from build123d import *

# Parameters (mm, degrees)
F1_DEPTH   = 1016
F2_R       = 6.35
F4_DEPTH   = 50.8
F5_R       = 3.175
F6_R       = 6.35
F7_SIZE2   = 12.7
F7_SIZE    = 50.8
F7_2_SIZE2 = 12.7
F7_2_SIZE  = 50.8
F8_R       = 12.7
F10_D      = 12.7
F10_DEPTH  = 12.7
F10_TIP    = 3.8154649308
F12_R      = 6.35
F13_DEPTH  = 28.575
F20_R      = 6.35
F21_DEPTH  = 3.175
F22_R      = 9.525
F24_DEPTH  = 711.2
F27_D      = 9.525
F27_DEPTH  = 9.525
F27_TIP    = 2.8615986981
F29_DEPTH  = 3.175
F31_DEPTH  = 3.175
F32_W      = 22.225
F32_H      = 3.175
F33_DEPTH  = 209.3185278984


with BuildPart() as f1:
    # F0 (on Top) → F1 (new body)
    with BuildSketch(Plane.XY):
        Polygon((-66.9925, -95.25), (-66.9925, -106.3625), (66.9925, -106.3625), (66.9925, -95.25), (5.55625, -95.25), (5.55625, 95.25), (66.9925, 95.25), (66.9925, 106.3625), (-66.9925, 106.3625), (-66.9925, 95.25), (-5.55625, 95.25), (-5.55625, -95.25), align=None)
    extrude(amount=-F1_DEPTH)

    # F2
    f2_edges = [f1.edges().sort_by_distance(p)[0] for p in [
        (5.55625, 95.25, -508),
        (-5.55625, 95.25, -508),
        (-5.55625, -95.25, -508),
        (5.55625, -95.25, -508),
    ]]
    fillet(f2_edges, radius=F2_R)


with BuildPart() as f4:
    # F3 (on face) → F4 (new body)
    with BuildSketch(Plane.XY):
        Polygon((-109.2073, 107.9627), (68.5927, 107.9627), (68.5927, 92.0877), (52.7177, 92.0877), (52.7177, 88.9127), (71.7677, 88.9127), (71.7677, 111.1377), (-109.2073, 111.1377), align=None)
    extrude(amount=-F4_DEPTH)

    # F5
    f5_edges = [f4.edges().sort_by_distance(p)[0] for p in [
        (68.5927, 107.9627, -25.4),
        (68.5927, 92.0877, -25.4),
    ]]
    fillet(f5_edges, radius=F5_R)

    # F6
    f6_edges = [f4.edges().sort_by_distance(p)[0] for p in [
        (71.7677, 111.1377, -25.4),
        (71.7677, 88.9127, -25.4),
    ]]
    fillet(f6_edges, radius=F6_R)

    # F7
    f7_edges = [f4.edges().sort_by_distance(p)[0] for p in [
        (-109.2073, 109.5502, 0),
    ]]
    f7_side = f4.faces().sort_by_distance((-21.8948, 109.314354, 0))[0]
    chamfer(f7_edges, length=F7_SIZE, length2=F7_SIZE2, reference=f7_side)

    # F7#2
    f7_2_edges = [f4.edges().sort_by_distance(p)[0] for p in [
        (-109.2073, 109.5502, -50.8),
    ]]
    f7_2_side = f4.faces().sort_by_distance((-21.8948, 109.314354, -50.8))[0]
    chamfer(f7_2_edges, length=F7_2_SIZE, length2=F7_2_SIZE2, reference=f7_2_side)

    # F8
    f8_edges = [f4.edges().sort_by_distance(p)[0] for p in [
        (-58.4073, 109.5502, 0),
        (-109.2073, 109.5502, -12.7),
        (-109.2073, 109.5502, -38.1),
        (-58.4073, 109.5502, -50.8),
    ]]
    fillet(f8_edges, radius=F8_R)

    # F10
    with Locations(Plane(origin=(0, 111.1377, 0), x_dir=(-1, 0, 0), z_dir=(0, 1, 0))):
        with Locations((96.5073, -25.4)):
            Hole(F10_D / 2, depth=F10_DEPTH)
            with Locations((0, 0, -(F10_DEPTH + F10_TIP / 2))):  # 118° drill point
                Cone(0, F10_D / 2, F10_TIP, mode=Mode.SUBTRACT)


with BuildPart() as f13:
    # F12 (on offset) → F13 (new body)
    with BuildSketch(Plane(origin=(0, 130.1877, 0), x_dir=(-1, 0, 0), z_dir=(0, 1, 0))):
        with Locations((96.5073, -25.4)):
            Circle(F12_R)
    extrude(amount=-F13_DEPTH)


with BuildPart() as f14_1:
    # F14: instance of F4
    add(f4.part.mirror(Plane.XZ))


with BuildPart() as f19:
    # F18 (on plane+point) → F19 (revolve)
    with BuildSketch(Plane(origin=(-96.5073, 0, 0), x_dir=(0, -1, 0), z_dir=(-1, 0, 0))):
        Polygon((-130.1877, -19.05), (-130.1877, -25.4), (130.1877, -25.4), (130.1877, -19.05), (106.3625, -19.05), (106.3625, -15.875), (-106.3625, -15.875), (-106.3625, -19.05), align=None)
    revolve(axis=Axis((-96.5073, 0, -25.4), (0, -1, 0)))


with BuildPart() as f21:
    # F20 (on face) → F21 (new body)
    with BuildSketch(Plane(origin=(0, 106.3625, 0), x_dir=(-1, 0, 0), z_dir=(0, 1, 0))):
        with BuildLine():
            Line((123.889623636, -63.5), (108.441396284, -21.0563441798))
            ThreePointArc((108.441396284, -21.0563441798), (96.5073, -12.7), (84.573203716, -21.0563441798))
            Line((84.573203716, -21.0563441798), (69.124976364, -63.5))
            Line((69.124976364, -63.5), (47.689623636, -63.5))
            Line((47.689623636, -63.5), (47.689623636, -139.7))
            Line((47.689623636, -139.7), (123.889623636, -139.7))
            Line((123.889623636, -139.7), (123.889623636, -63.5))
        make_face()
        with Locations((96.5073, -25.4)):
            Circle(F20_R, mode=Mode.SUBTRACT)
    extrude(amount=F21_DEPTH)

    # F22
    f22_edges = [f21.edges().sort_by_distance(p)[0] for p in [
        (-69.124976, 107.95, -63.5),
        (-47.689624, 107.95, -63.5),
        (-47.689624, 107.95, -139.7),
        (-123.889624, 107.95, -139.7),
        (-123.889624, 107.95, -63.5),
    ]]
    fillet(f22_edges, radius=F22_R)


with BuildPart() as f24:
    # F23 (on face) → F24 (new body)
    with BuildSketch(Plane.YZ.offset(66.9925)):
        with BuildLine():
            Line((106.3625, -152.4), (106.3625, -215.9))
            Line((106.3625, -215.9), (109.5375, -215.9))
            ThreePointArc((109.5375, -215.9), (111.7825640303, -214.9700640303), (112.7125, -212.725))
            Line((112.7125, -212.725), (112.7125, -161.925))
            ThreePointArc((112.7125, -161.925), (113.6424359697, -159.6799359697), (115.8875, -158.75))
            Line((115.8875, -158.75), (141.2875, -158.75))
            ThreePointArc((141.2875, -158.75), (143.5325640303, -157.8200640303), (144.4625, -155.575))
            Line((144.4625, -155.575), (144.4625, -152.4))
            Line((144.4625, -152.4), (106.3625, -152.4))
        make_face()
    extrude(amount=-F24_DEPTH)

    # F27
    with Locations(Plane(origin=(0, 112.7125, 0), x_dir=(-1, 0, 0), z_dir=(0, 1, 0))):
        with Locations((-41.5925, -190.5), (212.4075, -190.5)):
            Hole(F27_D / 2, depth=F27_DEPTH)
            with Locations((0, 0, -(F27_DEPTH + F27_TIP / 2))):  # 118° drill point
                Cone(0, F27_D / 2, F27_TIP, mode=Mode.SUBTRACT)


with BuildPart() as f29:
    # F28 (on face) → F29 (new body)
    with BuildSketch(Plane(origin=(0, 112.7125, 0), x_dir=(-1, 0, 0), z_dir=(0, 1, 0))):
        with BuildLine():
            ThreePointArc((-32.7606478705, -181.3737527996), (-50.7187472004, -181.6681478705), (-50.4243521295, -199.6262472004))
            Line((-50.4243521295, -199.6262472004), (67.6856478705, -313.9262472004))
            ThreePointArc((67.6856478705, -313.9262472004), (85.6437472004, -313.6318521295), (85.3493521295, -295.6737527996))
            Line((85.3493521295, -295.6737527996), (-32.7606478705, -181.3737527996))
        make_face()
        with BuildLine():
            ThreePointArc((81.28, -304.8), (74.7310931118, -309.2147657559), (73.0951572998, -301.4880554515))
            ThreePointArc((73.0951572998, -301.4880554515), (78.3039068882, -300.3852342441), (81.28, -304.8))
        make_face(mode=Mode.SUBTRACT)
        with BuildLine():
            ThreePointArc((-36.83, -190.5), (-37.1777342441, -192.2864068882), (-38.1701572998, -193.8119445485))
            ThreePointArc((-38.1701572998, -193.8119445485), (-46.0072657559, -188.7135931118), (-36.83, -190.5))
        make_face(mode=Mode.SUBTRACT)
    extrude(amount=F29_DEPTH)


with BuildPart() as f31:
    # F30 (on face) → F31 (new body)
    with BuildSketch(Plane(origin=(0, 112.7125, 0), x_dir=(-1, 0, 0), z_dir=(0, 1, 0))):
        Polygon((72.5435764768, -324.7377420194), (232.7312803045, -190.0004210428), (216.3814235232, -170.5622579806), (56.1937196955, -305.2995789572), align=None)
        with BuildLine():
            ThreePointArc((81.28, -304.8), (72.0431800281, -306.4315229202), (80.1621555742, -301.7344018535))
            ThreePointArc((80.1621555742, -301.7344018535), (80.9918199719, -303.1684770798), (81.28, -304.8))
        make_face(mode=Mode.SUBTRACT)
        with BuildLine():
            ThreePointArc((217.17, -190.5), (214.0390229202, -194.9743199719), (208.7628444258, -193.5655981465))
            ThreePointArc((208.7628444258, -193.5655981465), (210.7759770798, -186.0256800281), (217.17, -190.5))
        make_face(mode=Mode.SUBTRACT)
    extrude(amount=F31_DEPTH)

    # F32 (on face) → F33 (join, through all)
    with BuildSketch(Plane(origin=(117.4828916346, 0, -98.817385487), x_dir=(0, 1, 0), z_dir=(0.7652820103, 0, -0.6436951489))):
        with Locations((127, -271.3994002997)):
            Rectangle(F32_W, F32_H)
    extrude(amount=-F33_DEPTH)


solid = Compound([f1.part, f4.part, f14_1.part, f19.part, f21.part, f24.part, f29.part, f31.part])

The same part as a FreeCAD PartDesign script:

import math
import FreeCAD as App
import Part
import Sketcher
from FreeCAD import Vector
Q = App.Units.Quantity


def edges_at(feature, points):
    """Names of the edges that pass closest to the given points."""
    edges = feature.Shape.Edges
    near = lambda p: min(range(len(edges)), key=lambda i: edges[i].distToShape(Part.Vertex(*p))[0])
    return sorted({f"Edge{near(p) + 1}" for p in points})

doc = App.newDocument("Part")
body = doc.addObject("PartDesign::Body", "Body")

sketch1 = body.newObject("Sketcher::SketchObject", "Sketch")
sketch1.AttachmentSupport = (doc.getObject("XY_Plane"), [""])
sketch1.MapMode = "FlatFace"
sketch1.addGeometry(Part.LineSegment(Vector(-67, -95, 0), Vector(-67, -106, 0)), False)
sketch1.addGeometry(Part.LineSegment(Vector(-67, -106, 0), Vector(67, -106, 0)), False)
sketch1.addGeometry(Part.LineSegment(Vector(67, -106, 0), Vector(67, -95, 0)), False)
sketch1.addGeometry(Part.LineSegment(Vector(67, -95, 0), Vector(6, -95, 0)), False)
sketch1.addGeometry(Part.LineSegment(Vector(6, -95, 0), Vector(6, 95, 0)), False)
sketch1.addGeometry(Part.LineSegment(Vector(6, 95, 0), Vector(67, 95, 0)), False)
sketch1.addGeometry(Part.LineSegment(Vector(67, 95, 0), Vector(67, 106, 0)), False)
sketch1.addGeometry(Part.LineSegment(Vector(67, 106, 0), Vector(-67, 106, 0)), False)
sketch1.addGeometry(Part.LineSegment(Vector(-67, 106, 0), Vector(-67, 95, 0)), False)
sketch1.addGeometry(Part.LineSegment(Vector(-67, 95, 0), Vector(-6, 95, 0)), False)
sketch1.addGeometry(Part.LineSegment(Vector(-6, 95, 0), Vector(-6, -95, 0)), False)
sketch1.addGeometry(Part.LineSegment(Vector(-6, -95, 0), Vector(-67, -95, 0)), False)
sketch1.addConstraint(Sketcher.Constraint("Coincident", 0, 2, 1, 1))
sketch1.addConstraint(Sketcher.Constraint("Coincident", 1, 2, 2, 1))
sketch1.addConstraint(Sketcher.Constraint("Coincident", 2, 2, 3, 1))
sketch1.addConstraint(Sketcher.Constraint("Coincident", 3, 2, 4, 1))
sketch1.addConstraint(Sketcher.Constraint("Coincident", 4, 2, 5, 1))
sketch1.addConstraint(Sketcher.Constraint("Coincident", 5, 2, 6, 1))
sketch1.addConstraint(Sketcher.Constraint("Coincident", 6, 2, 7, 1))
sketch1.addConstraint(Sketcher.Constraint("Coincident", 7, 2, 8, 1))
sketch1.addConstraint(Sketcher.Constraint("Coincident", 8, 2, 9, 1))
sketch1.addConstraint(Sketcher.Constraint("Coincident", 9, 2, 10, 1))
sketch1.addConstraint(Sketcher.Constraint("Coincident", 10, 2, 11, 1))
sketch1.addConstraint(Sketcher.Constraint("Coincident", 11, 2, 0, 1))
sketch1.addConstraint(Sketcher.Constraint("Vertical", 0))
sketch1.addConstraint(Sketcher.Constraint("Horizontal", 1))
sketch1.addConstraint(Sketcher.Constraint("Vertical", 2))
sketch1.addConstraint(Sketcher.Constraint("Horizontal", 3))
sketch1.addConstraint(Sketcher.Constraint("Vertical", 4))
sketch1.addConstraint(Sketcher.Constraint("Horizontal", 5))
sketch1.addConstraint(Sketcher.Constraint("Vertical", 6))
sketch1.addConstraint(Sketcher.Constraint("Horizontal", 7))
sketch1.addConstraint(Sketcher.Constraint("Vertical", 8))
sketch1.addConstraint(Sketcher.Constraint("Horizontal", 9))
sketch1.addConstraint(Sketcher.Constraint("Vertical", 10))
sketch1.addConstraint(Sketcher.Constraint("Horizontal", 11))
sketch1.addConstraint(Sketcher.Constraint("Symmetric", 0, 2, 6, 2, -1, 1))
sketch1.addConstraint(Sketcher.Constraint("Symmetric", 2, 2, 8, 2, -1, 1))
sketch1.addConstraint(Sketcher.Constraint("Symmetric", 4, 2, 10, 2, -1, 1))
sketch1.addConstraint(Sketcher.Constraint("Symmetric", 5, 2, 8, 2, -2))
sketch1.addConstraint(Sketcher.Constraint("DistanceY", 4, 1, 4, 2, Q("7.5 in")))
sketch1.addConstraint(Sketcher.Constraint("DistanceX", 1, 1, 1, 2, Q("5.275 in")))
sketch1.addConstraint(Sketcher.Constraint("DistanceY", 0, 2, 0, 1, Q("0.4375 in")))
sketch1.addConstraint(Sketcher.Constraint("DistanceX", -1, 1, 3, 2, Q("0.21875 in")))
pad1 = body.newObject("PartDesign::Pad", "Pad")
pad1.Profile = sketch1
pad1.Length = Q("40 in")
pad1.Reversed = True
doc.recompute()

fillet = body.newObject("PartDesign::Fillet", "Fillet")
fillet.Base = (pad1, edges_at(pad1, [
    (5.556, 95.25, -508),
    (-5.556, 95.25, -508),
    (-5.556, -95.25, -508),
    (5.556, -95.25, -508),
]))
fillet.Radius = Q("0.25 in")
body2 = doc.addObject("PartDesign::Body", "Body001")

sketch2 = body2.newObject("Sketcher::SketchObject", "Sketch001")
sketch2.AttachmentSupport = (doc.getObject("XY_Plane001"), [""])
sketch2.MapMode = "FlatFace"
sketch2.addGeometry(Part.LineSegment(Vector(-109.2, 108, 0), Vector(68.6, 108, 0)), False)
sketch2.addGeometry(Part.LineSegment(Vector(68.6, 108, 0), Vector(68.6, 92.1, 0)), False)
sketch2.addGeometry(Part.LineSegment(Vector(68.6, 92.1, 0), Vector(52.7, 92.1, 0)), False)
sketch2.addGeometry(Part.LineSegment(Vector(52.7, 92.1, 0), Vector(52.7, 88.9, 0)), False)
sketch2.addGeometry(Part.LineSegment(Vector(52.7, 88.9, 0), Vector(71.8, 88.9, 0)), False)
sketch2.addGeometry(Part.LineSegment(Vector(71.8, 88.9, 0), Vector(71.8, 111.1, 0)), False)
sketch2.addGeometry(Part.LineSegment(Vector(71.8, 111.1, 0), Vector(-109.2, 111.1, 0)), False)
sketch2.addGeometry(Part.LineSegment(Vector(-109.2, 111.1, 0), Vector(-109.2, 108, 0)), False)
sketch2.addConstraint(Sketcher.Constraint("Coincident", 0, 2, 1, 1))
sketch2.addConstraint(Sketcher.Constraint("Coincident", 1, 2, 2, 1))
sketch2.addConstraint(Sketcher.Constraint("Coincident", 2, 2, 3, 1))
sketch2.addConstraint(Sketcher.Constraint("Coincident", 3, 2, 4, 1))
sketch2.addConstraint(Sketcher.Constraint("Coincident", 4, 2, 5, 1))
sketch2.addConstraint(Sketcher.Constraint("Coincident", 5, 2, 6, 1))
sketch2.addConstraint(Sketcher.Constraint("Coincident", 6, 2, 7, 1))
sketch2.addConstraint(Sketcher.Constraint("Coincident", 7, 2, 0, 1))
sketch2.addConstraint(Sketcher.Constraint("Horizontal", 0))
sketch2.addConstraint(Sketcher.Constraint("Vertical", 1))
sketch2.addConstraint(Sketcher.Constraint("Horizontal", 2))
sketch2.addConstraint(Sketcher.Constraint("Vertical", 3))
sketch2.addConstraint(Sketcher.Constraint("Horizontal", 4))
sketch2.addConstraint(Sketcher.Constraint("Vertical", 5))
sketch2.addConstraint(Sketcher.Constraint("Horizontal", 6))
sketch2.addConstraint(Sketcher.Constraint("Vertical", 7))
sketch2.addConstraint(Sketcher.Constraint("Equal", 2, 1))
sketch2.addConstraint(Sketcher.Constraint("Equal", 3, 7))
sketch2.addConstraint(Sketcher.Constraint("DistanceX", 0, 1, 0, 2, Q("7 in")))
sketch2.addConstraint(Sketcher.Constraint("DistanceX", 4, 1, 4, 2, Q("0.75 in")))
sketch2.addConstraint(Sketcher.Constraint("DistanceX", 2, 2, 2, 1, Q("0.625 in")))
sketch2.addConstraint(Sketcher.Constraint("DistanceY", 3, 2, 3, 1, Q("0.125 in")))
sketch2.addConstraint(Sketcher.Constraint("DistanceX", -1, 1, 0, 2, Q("2.7005 in")))
sketch2.addConstraint(Sketcher.Constraint("DistanceY", -1, 1, 0, 2, Q("4.2505 in")))
pad2 = body2.newObject("PartDesign::Pad", "Pad001")
pad2.Profile = sketch2
pad2.Length = Q("2 in")
pad2.Reversed = True
doc.recompute()

fillet2 = body2.newObject("PartDesign::Fillet", "Fillet001")
fillet2.Base = (pad2, edges_at(pad2, [(68.593, 107.963, -25.4), (68.593, 92.088, -25.4)]))
fillet2.Radius = Q("0.125 in")
doc.recompute()

fillet3 = body2.newObject("PartDesign::Fillet", "Fillet002")
fillet3.Base = (fillet2, edges_at(fillet2, [(71.768, 111.138, -25.4), (71.768, 88.913, -25.4)]))
fillet3.Radius = Q("0.25 in")
doc.recompute()

chamfer = body2.newObject("PartDesign::Chamfer", "Chamfer")
chamfer.Base = (fillet3, edges_at(fillet3, [(-109.207, 109.55, 0)]))
chamfer.ChamferType = "Two distances"
chamfer.Size = Q("2 in")
chamfer.Size2 = Q("0.5 in")
doc.recompute()

chamfer2 = body2.newObject("PartDesign::Chamfer", "Chamfer001")
chamfer2.Base = (chamfer, edges_at(chamfer, [(-109.207, 109.55, -50.8)]))
chamfer2.ChamferType = "Two distances"
chamfer2.Size = Q("2 in")
chamfer2.Size2 = Q("0.5 in")
chamfer2.FlipDirection = True
doc.recompute()

fillet4 = body2.newObject("PartDesign::Fillet", "Fillet003")
fillet4.Base = (chamfer2, edges_at(chamfer2, [
    (-58.407, 109.55, 0),
    (-109.207, 109.55, -12.7),
    (-109.207, 109.55, -38.1),
    (-58.407, 109.55, -50.8),
]))
fillet4.Radius = Q("0.5 in")

sketch3 = body2.newObject("Sketcher::SketchObject", "Sketch002")
sketch3.AttachmentSupport = (doc.getObject("XZ_Plane001"), [""])
sketch3.MapMode = "FlatFace"
sketch3.AttachmentOffset = App.Placement(Vector(0, 0, -4.3755 * 25.4), App.Rotation())
sketch3.addGeometry(Part.Circle(Vector(-97, -25, 0), Vector(0, 0, 1), 6), False)
sketch3.addConstraint(Sketcher.Constraint("Diameter", 0, Q("0.5 in")))
sketch3.addConstraint(Sketcher.Constraint("DistanceY", 0, 3, -1, 1, Q("1 in")))
sketch3.addConstraint(Sketcher.Constraint("DistanceX", 0, 3, -1, 1, Q("3.7995 in")))
doc.recompute()
hole = body2.newObject("PartDesign::Hole", "Hole")
hole.Profile = sketch3
hole.ThreadType = "None"
hole.Diameter = Q("0.5 in")
hole.DepthType = "Dimension"
hole.Depth = Q("0.5 in")
hole.DrillPoint = "Angled"
hole.DrillPointAngle = 118
hole.Reversed = True
body3 = doc.addObject("PartDesign::Body", "Body002")

sketch4 = body3.newObject("Sketcher::SketchObject", "Sketch003")
sketch4.AttachmentSupport = (doc.getObject("XZ_Plane002"), [""])
sketch4.MapMode = "FlatFace"
sketch4.AttachmentOffset = App.Placement(Vector(0, 0, -5.1255 * 25.4), App.Rotation())
sketch4.addGeometry(Part.Circle(Vector(-97, -25, 0), Vector(0, 0, 1), 6), False)
sketch4.addConstraint(Sketcher.Constraint("Diameter", 0, Q("0.5 in")))
sketch4.addConstraint(Sketcher.Constraint("DistanceY", 0, 3, -1, 1, Q("1 in")))
sketch4.addConstraint(Sketcher.Constraint("DistanceX", 0, 3, -1, 1, Q("3.7995 in")))
pad3 = body3.newObject("PartDesign::Pad", "Pad002")
pad3.Profile = sketch4
pad3.Length = Q("1.125 in")
body4 = doc.addObject("PartDesign::Body", "Body003")
doc.recompute()

mirroring = doc.addObject("Part::Mirroring", "Mirroring")
mirroring.Source = body2
mirroring.Base = Vector(0, 0, 0)
mirroring.Normal = Vector(0, -1, 0)
body4.BaseFeature = mirroring
doc.recompute()
body5 = doc.addObject("PartDesign::Body", "Body004")

sketch5 = body5.newObject("Sketcher::SketchObject", "Sketch004")
sketch5.AttachmentSupport = (doc.getObject("YZ_Plane004"), [""])
sketch5.MapMode = "FlatFace"
sketch5.AttachmentOffset = App.Placement(Vector(0, 0, -3.7995 * 25.4), App.Rotation())
sketch5.addGeometry(Part.LineSegment(Vector(130.2, -19.1, 0), Vector(130.2, -25.4, 0)), False)
sketch5.addGeometry(Part.LineSegment(Vector(130.2, -25.4, 0), Vector(-130.2, -25.4, 0)), False)
sketch5.addGeometry(Part.LineSegment(Vector(-130.2, -25.4, 0), Vector(-130.2, -19.1, 0)), False)
sketch5.addGeometry(Part.LineSegment(Vector(-130.2, -19.1, 0), Vector(-106.4, -19.1, 0)), False)
sketch5.addGeometry(Part.LineSegment(Vector(-106.4, -19.1, 0), Vector(-106.4, -15.9, 0)), False)
sketch5.addGeometry(Part.LineSegment(Vector(-106.4, -15.9, 0), Vector(106.4, -15.9, 0)), False)
sketch5.addGeometry(Part.LineSegment(Vector(106.4, -15.9, 0), Vector(106.4, -19.1, 0)), False)
sketch5.addGeometry(Part.LineSegment(Vector(106.4, -19.1, 0), Vector(130.2, -19.1, 0)), False)
sketch5.addGeometry(Part.LineSegment(Vector(130.2, -25.4, 0), Vector(-130.2, -25.4, 0)), True)
sketch5.addConstraint(Sketcher.Constraint("Coincident", 0, 2, 1, 1))
sketch5.addConstraint(Sketcher.Constraint("Coincident", 1, 2, 2, 1))
sketch5.addConstraint(Sketcher.Constraint("Coincident", 2, 2, 3, 1))
sketch5.addConstraint(Sketcher.Constraint("Coincident", 3, 2, 4, 1))
sketch5.addConstraint(Sketcher.Constraint("Coincident", 4, 2, 5, 1))
sketch5.addConstraint(Sketcher.Constraint("Coincident", 5, 2, 6, 1))
sketch5.addConstraint(Sketcher.Constraint("Coincident", 6, 2, 7, 1))
sketch5.addConstraint(Sketcher.Constraint("Coincident", 7, 2, 0, 1))
sketch5.addConstraint(Sketcher.Constraint("Vertical", 0))
sketch5.addConstraint(Sketcher.Constraint("Horizontal", 1))
sketch5.addConstraint(Sketcher.Constraint("Vertical", 2))
sketch5.addConstraint(Sketcher.Constraint("Horizontal", 3))
sketch5.addConstraint(Sketcher.Constraint("Vertical", 4))
sketch5.addConstraint(Sketcher.Constraint("Horizontal", 5))
sketch5.addConstraint(Sketcher.Constraint("Vertical", 6))
sketch5.addConstraint(Sketcher.Constraint("Horizontal", 7))
sketch5.addConstraint(Sketcher.Constraint("Horizontal", 8))
sketch5.addConstraint(Sketcher.Constraint("Coincident", 8, 1, 0, 2))
sketch5.addConstraint(Sketcher.Constraint("Symmetric", 3, 2, 6, 2, -2))
sketch5.addConstraint(Sketcher.Constraint("Vertical", 2, 2, 8, 2))
sketch5.addConstraint(Sketcher.Constraint("Equal", 3, 7))
sketch5.addConstraint(Sketcher.Constraint("DistanceY", 0, 2, -1, 1, Q("1 in")))
sketch5.addConstraint(Sketcher.Constraint("DistanceY", 0, 2, 0, 1, Q("0.25 in")))
sketch5.addConstraint(Sketcher.Constraint("DistanceX", 1, 2, 1, 1, Q("10.251 in")))
sketch5.addConstraint(Sketcher.Constraint("DistanceX", 3, 1, 3, 2, Q("0.938 in")))
sketch5.addConstraint(Sketcher.Constraint("DistanceY", 4, 1, 4, 2, Q("0.125 in")))
revolution = body5.newObject("PartDesign::Revolution", "Revolution")
revolution.Profile = sketch5
revolution.ReferenceAxis = (sketch5, ["Axis0"])
revolution.Angle = 360
body6 = doc.addObject("PartDesign::Body", "Body005")

sketch6 = body6.newObject("Sketcher::SketchObject", "Sketch005")
sketch6.AttachmentSupport = (doc.getObject("XZ_Plane005"), [""])
sketch6.MapMode = "FlatFace"
sketch6.AttachmentOffset = App.Placement(Vector(0, 0, -4.1875 * 25.4), App.Rotation())
sketch6.addGeometry(Part.LineSegment(Vector(-124, -64, 0), Vector(-108, -21, 0)), False)
sketch6.addGeometry(Part.ArcOfCircle(Part.Circle(Vector(-97, -25, 0), Vector(0, 0, 1), 13), math.radians(20), math.radians(160)), False)
sketch6.addGeometry(Part.LineSegment(Vector(-85, -21, 0), Vector(-69, -64, 0)), False)
sketch6.addGeometry(Part.LineSegment(Vector(-69, -64, 0), Vector(-48, -64, 0)), False)
sketch6.addGeometry(Part.LineSegment(Vector(-48, -64, 0), Vector(-48, -140, 0)), False)
sketch6.addGeometry(Part.LineSegment(Vector(-48, -140, 0), Vector(-124, -140, 0)), False)
sketch6.addGeometry(Part.LineSegment(Vector(-124, -140, 0), Vector(-124, -64, 0)), False)
sketch6.addGeometry(Part.Circle(Vector(-97, -25, 0), Vector(0, 0, 1), 6), False)
sketch6.addConstraint(Sketcher.Constraint("Tangent", 0, 2, 1, 2))
sketch6.addConstraint(Sketcher.Constraint("Tangent", 1, 1, 2, 1))
sketch6.addConstraint(Sketcher.Constraint("Coincident", 2, 2, 3, 1))
sketch6.addConstraint(Sketcher.Constraint("Coincident", 3, 2, 4, 1))
sketch6.addConstraint(Sketcher.Constraint("Coincident", 4, 2, 5, 1))
sketch6.addConstraint(Sketcher.Constraint("Coincident", 5, 2, 6, 1))
sketch6.addConstraint(Sketcher.Constraint("Coincident", 6, 2, 0, 1))
sketch6.addConstraint(Sketcher.Constraint("Horizontal", 3))
sketch6.addConstraint(Sketcher.Constraint("Vertical", 4))
sketch6.addConstraint(Sketcher.Constraint("Horizontal", 5))
sketch6.addConstraint(Sketcher.Constraint("Vertical", 6))
sketch6.addConstraint(Sketcher.Constraint("Coincident", 7, 3, 1, 3))
sketch6.addConstraint(Sketcher.Constraint("Horizontal", 0, 2, 1, 1))
sketch6.addConstraint(Sketcher.Constraint("Horizontal", 3, 2, 6, 2))
sketch6.addConstraint(Sketcher.Constraint("Equal", 5, 4))
sketch6.addConstraint(Sketcher.Constraint("Diameter", 7, Q("0.5 in")))
sketch6.addConstraint(Sketcher.Constraint("Radius", 1, Q("0.5 in")))
sketch6.addConstraint(Sketcher.Constraint("DistanceX", 5, 2, 5, 1, Q("3 in")))
sketch6.addConstraint(Sketcher.Constraint("DistanceY", 1, 3, -1, 1, Q("1 in")))
sketch6.addConstraint(Sketcher.Constraint("Angle", 0, Q("70 deg")))
sketch6.addConstraint(Sketcher.Constraint("DistanceY", 2, 2, -1, 1, Q("2.5 in")))
sketch6.addConstraint(Sketcher.Constraint("DistanceX", 1, 3, -1, 1, Q("3.7995 in")))
pad4 = body6.newObject("PartDesign::Pad", "Pad003")
pad4.Profile = sketch6
pad4.Length = Q("0.125 in")
pad4.Reversed = True
doc.recompute()

fillet5 = body6.newObject("PartDesign::Fillet", "Fillet004")
fillet5.Base = (pad4, edges_at(pad4, [
    (-69.125, 107.95, -63.5),
    (-47.69, 107.95, -63.5),
    (-47.69, 107.95, -139.7),
    (-123.89, 107.95, -139.7),
    (-123.89, 107.95, -63.5),
]))
fillet5.Radius = Q("0.375 in")
body7 = doc.addObject("PartDesign::Body", "Body006")

sketch7 = body7.newObject("Sketcher::SketchObject", "Sketch006")
sketch7.AttachmentSupport = (doc.getObject("YZ_Plane006"), [""])
sketch7.MapMode = "FlatFace"
sketch7.AttachmentOffset = App.Placement(Vector(0, 0, 2.6375 * 25.4), App.Rotation())
sketch7.addGeometry(Part.LineSegment(Vector(106.4, -152.4, 0), Vector(106.4, -215.9, 0)), False)
sketch7.addGeometry(Part.LineSegment(Vector(106.4, -215.9, 0), Vector(109.5, -215.9, 0)), False)
sketch7.addGeometry(Part.ArcOfCircle(Part.Circle(Vector(109.5, -212.7, 0), Vector(0, 0, 1), 3.2), math.radians(-90), math.radians(0)), False)
sketch7.addGeometry(Part.LineSegment(Vector(112.7, -212.7, 0), Vector(112.7, -161.9, 0)), False)
sketch7.addGeometry(Part.ArcOfCircle(Part.Circle(Vector(115.9, -161.9, 0), Vector(0, 0, 1), 3.2), math.radians(90), math.radians(180)), False)
sketch7.addGeometry(Part.LineSegment(Vector(115.9, -158.8, 0), Vector(141.3, -158.8, 0)), False)
sketch7.addGeometry(Part.ArcOfCircle(Part.Circle(Vector(141.3, -155.6, 0), Vector(0, 0, 1), 3.2), math.radians(-90), math.radians(0)), False)
sketch7.addGeometry(Part.LineSegment(Vector(144.5, -155.6, 0), Vector(144.5, -152.4, 0)), False)
sketch7.addGeometry(Part.LineSegment(Vector(144.5, -152.4, 0), Vector(106.4, -152.4, 0)), False)
sketch7.addConstraint(Sketcher.Constraint("Coincident", 0, 2, 1, 1))
sketch7.addConstraint(Sketcher.Constraint("Tangent", 1, 2, 2, 1))
sketch7.addConstraint(Sketcher.Constraint("Tangent", 2, 2, 3, 1))
sketch7.addConstraint(Sketcher.Constraint("Tangent", 3, 2, 4, 2))
sketch7.addConstraint(Sketcher.Constraint("Tangent", 4, 1, 5, 1))
sketch7.addConstraint(Sketcher.Constraint("Tangent", 5, 2, 6, 1))
sketch7.addConstraint(Sketcher.Constraint("Tangent", 6, 2, 7, 1))
sketch7.addConstraint(Sketcher.Constraint("Coincident", 7, 2, 8, 1))
sketch7.addConstraint(Sketcher.Constraint("Coincident", 8, 2, 0, 1))
sketch7.addConstraint(Sketcher.Constraint("Vertical", 0))
sketch7.addConstraint(Sketcher.Constraint("Horizontal", 1))
sketch7.addConstraint(Sketcher.Constraint("Vertical", 3))
sketch7.addConstraint(Sketcher.Constraint("Horizontal", 5))
sketch7.addConstraint(Sketcher.Constraint("Vertical", 7))
sketch7.addConstraint(Sketcher.Constraint("Horizontal", 8))
sketch7.addConstraint(Sketcher.Constraint("Equal", 2, 4))
sketch7.addConstraint(Sketcher.Constraint("Equal", 4, 6))
sketch7.addConstraint(Sketcher.Constraint("Equal", 1, 7))
sketch7.addConstraint(Sketcher.Constraint("DistanceX", 5, 1, 5, 2, Q("1 in")))
sketch7.addConstraint(Sketcher.Constraint("DistanceY", 3, 1, 3, 2, Q("2 in")))
sketch7.addConstraint(Sketcher.Constraint("DistanceX", 8, 2, 8, 1, Q("1.5 in")))
sketch7.addConstraint(Sketcher.Constraint("DistanceY", 7, 2, -1, 1, Q("6 in")))
sketch7.addConstraint(Sketcher.Constraint("Radius", 2, Q("0.125 in")))
sketch7.addConstraint(Sketcher.Constraint("DistanceX", -1, 1, 2, 3, Q("4.3125 in")))
pad5 = body7.newObject("PartDesign::Pad", "Pad004")
pad5.Profile = sketch7
pad5.Length = Q("28 in")
pad5.Reversed = True

sketch8 = body7.newObject("Sketcher::SketchObject", "Sketch007")
sketch8.AttachmentSupport = (doc.getObject("XZ_Plane006"), [""])
sketch8.MapMode = "FlatFace"
sketch8.AttachmentOffset = App.Placement(Vector(0, 0, -4.4375 * 25.4), App.Rotation())
sketch8.addGeometry(Part.Circle(Vector(41.6, -190.5, 0), Vector(0, 0, 1), 4.8), False)
sketch8.addGeometry(Part.Circle(Vector(-212.4, -190.5, 0), Vector(0, 0, 1), 4.8), False)
sketch8.addConstraint(Sketcher.Constraint("Equal", 0, 1))
sketch8.addConstraint(Sketcher.Constraint("Horizontal", 0, 3, 1, 3))
sketch8.addConstraint(Sketcher.Constraint("Diameter", 0, Q("0.375 in")))
sketch8.addConstraint(Sketcher.Constraint("DistanceX", 1, 3, 0, 3, Q("10 in")))
sketch8.addConstraint(Sketcher.Constraint("DistanceY", 0, 3, -1, 1, Q("7.5 in")))
sketch8.addConstraint(Sketcher.Constraint("DistanceX", -1, 1, 0, 3, Q("1.6375 in")))
doc.recompute()
hole2 = body7.newObject("PartDesign::Hole", "Hole001")
hole2.Profile = sketch8
hole2.ThreadType = "None"
hole2.Diameter = Q("0.375 in")
hole2.DepthType = "Dimension"
hole2.Depth = Q("0.375 in")
hole2.DrillPoint = "Angled"
hole2.DrillPointAngle = 118
hole2.Reversed = True
body8 = doc.addObject("PartDesign::Body", "Body007")

sketch9 = body8.newObject("Sketcher::SketchObject", "Sketch008")
sketch9.AttachmentSupport = (doc.getObject("XZ_Plane007"), [""])
sketch9.MapMode = "FlatFace"
sketch9.AttachmentOffset = App.Placement(Vector(0, 0, -4.4375 * 25.4), App.Rotation())
sketch9.addGeometry(Part.ArcOfCircle(Part.Circle(Vector(41.6, -190.5, 0), Vector(0, 0, 1), 12.7), math.radians(-46), math.radians(134)), False)
sketch9.addGeometry(Part.LineSegment(Vector(50.4, -199.6, 0), Vector(-67.7, -313.9, 0)), False)
sketch9.addGeometry(Part.ArcOfCircle(Part.Circle(Vector(-76.5, -304.8, 0), Vector(0, 0, 1), 12.7), math.radians(134), math.radians(314)), False)
sketch9.addGeometry(Part.LineSegment(Vector(-85.3, -295.7, 0), Vector(32.8, -181.4, 0)), False)
sketch9.addGeometry(Part.ArcOfCircle(Part.Circle(Vector(-76.5, -304.8, 0), Vector(0, 0, 1), 4.8), math.radians(44), math.radians(180)), False)
sketch9.addGeometry(Part.ArcOfCircle(Part.Circle(Vector(-76.5, -304.8, 0), Vector(0, 0, 1), 4.8), math.radians(180), math.radians(404)), False)
sketch9.addGeometry(Part.ArcOfCircle(Part.Circle(Vector(41.6, -190.5, 0), Vector(0, 0, 1), 4.8), math.radians(-136), math.radians(180)), False)
sketch9.addGeometry(Part.ArcOfCircle(Part.Circle(Vector(41.6, -190.5, 0), Vector(0, 0, 1), 4.8), math.radians(180), math.radians(224)), False)
sketch9.addConstraint(Sketcher.Constraint("Tangent", 0, 1, 1, 1))
sketch9.addConstraint(Sketcher.Constraint("Tangent", 1, 2, 2, 2))
sketch9.addConstraint(Sketcher.Constraint("Tangent", 2, 1, 3, 1))
sketch9.addConstraint(Sketcher.Constraint("Tangent", 3, 2, 0, 2))
sketch9.addConstraint(Sketcher.Constraint("Tangent", 4, 1, 5, 2))
sketch9.addConstraint(Sketcher.Constraint("Coincident", 5, 1, 4, 2))
sketch9.addConstraint(Sketcher.Constraint("Tangent", 6, 1, 7, 2))
sketch9.addConstraint(Sketcher.Constraint("Coincident", 7, 1, 6, 2))
sketch9.addConstraint(Sketcher.Constraint("Coincident", 4, 3, 2, 3))
sketch9.addConstraint(Sketcher.Constraint("Coincident", 6, 3, 0, 3))
sketch9.addConstraint(Sketcher.Constraint("Equal", 0, 2))
sketch9.addConstraint(Sketcher.Constraint("Equal", 5, 6))
sketch9.addConstraint(Sketcher.Constraint("Horizontal", 4, 3, 5, 1))
sketch9.addConstraint(Sketcher.Constraint("Horizontal", 6, 3, 7, 1))
sketch9.addConstraint(Sketcher.Constraint("Radius", 0, Q("0.5 in")))
sketch9.addConstraint(Sketcher.Constraint("DistanceY", 2, 3, -1, 1, Q("12 in")))
sketch9.addConstraint(Sketcher.Constraint("Radius", 4, Q("0.1875 in")))
sketch9.addConstraint(Sketcher.Constraint("DistanceY", 0, 3, -1, 1, Q("7.5 in")))
sketch9.addConstraint(Sketcher.Constraint("DistanceX", 5, 1, -1, 1, Q("3.2 in")))
sketch9.addConstraint(Sketcher.Constraint("DistanceX", -1, 1, 7, 1, Q("1.45 in")))
sketch9.addConstraint(Sketcher.Constraint("DistanceX", 4, 1, 1, 2, Q("5.409509 mm")))
sketch9.addConstraint(Sketcher.Constraint("DistanceX", 3, 2, 6, 1, Q("5.409509 mm")))
pad6 = body8.newObject("PartDesign::Pad", "Pad005")
pad6.Profile = sketch9
pad6.Length = Q("0.125 in")
pad6.Reversed = True
body9 = doc.addObject("PartDesign::Body", "Body008")

sketch10 = body9.newObject("Sketcher::SketchObject", "Sketch009")
sketch10.AttachmentSupport = (doc.getObject("XZ_Plane008"), [""])
sketch10.MapMode = "FlatFace"
sketch10.AttachmentOffset = App.Placement(Vector(0, 0, -4.4375 * 25.4), App.Rotation())
sketch10.addGeometry(Part.LineSegment(Vector(-72.5, -324.7, 0), Vector(-232.7, -190, 0)), False)
sketch10.addGeometry(Part.LineSegment(Vector(-232.7, -190, 0), Vector(-216.4, -170.6, 0)), False)
sketch10.addGeometry(Part.LineSegment(Vector(-216.4, -170.6, 0), Vector(-56.2, -305.3, 0)), False)
sketch10.addGeometry(Part.LineSegment(Vector(-56.2, -305.3, 0), Vector(-72.5, -324.7, 0)), False)
sketch10.addGeometry(Part.ArcOfCircle(Part.Circle(Vector(-76.5, -304.8, 0), Vector(0, 0, 1), 4.8), math.radians(140), math.radians(180)), False)
sketch10.addGeometry(Part.ArcOfCircle(Part.Circle(Vector(-76.5, -304.8, 0), Vector(0, 0, 1), 4.8), math.radians(180), math.radians(500)), False)
sketch10.addGeometry(Part.ArcOfCircle(Part.Circle(Vector(-212.4, -190.5, 0), Vector(0, 0, 1), 4.8), math.radians(-40), math.radians(180)), False)
sketch10.addGeometry(Part.ArcOfCircle(Part.Circle(Vector(-212.4, -190.5, 0), Vector(0, 0, 1), 4.8), math.radians(180), math.radians(320)), False)
sketch10.addConstraint(Sketcher.Constraint("Coincident", 0, 2, 1, 1))
sketch10.addConstraint(Sketcher.Constraint("Coincident", 1, 2, 2, 1))
sketch10.addConstraint(Sketcher.Constraint("Coincident", 2, 2, 3, 1))
sketch10.addConstraint(Sketcher.Constraint("Coincident", 3, 2, 0, 1))
sketch10.addConstraint(Sketcher.Constraint("Tangent", 4, 1, 5, 2))
sketch10.addConstraint(Sketcher.Constraint("Coincident", 5, 1, 4, 2))
sketch10.addConstraint(Sketcher.Constraint("Tangent", 6, 1, 7, 2))
sketch10.addConstraint(Sketcher.Constraint("Coincident", 7, 1, 6, 2))
sketch10.addConstraint(Sketcher.Constraint("Equal", 5, 6))
sketch10.addConstraint(Sketcher.Constraint("Perpendicular", 0, 1))
sketch10.addConstraint(Sketcher.Constraint("Perpendicular", 1, 2))
sketch10.addConstraint(Sketcher.Constraint("Perpendicular", 2, 3))
sketch10.addConstraint(Sketcher.Constraint("Horizontal", 4, 3, 5, 1))
sketch10.addConstraint(Sketcher.Constraint("Horizontal", 6, 3, 7, 1))
sketch10.addConstraint(Sketcher.Constraint("Distance", 1, Q("1 in")))
sketch10.addConstraint(Sketcher.Constraint("DistanceY", 4, 3, -1, 1, Q("12 in")))
sketch10.addConstraint(Sketcher.Constraint("Radius", 4, Q("0.1875 in")))
sketch10.addConstraint(Sketcher.Constraint("DistanceY", 6, 3, -1, 1, Q("7.5 in")))
sketch10.addConstraint(Sketcher.Constraint("DistanceX", 5, 1, -1, 1, Q("3.2 in")))
sketch10.addConstraint(Sketcher.Constraint("DistanceX", 7, 1, -1, 1, Q("8.55 in")))
sketch10.addConstraint(Sketcher.Constraint("DistanceY", 4, 1, -1, 1, Q("301.734402 mm")))
sketch10.addConstraint(Sketcher.Constraint("DistanceY", 6, 1, -1, 1, Q("193.565598 mm")))
sketch10.addConstraint(Sketcher.Constraint("DistanceX", 0, 2, -1, 1, Q("232.73128 mm")))
sketch10.addConstraint(Sketcher.Constraint("DistanceY", 0, 2, -1, 1, Q("190.000421 mm")))
sketch10.addConstraint(Sketcher.Constraint("DistanceX", 2, 2, -1, 1, Q("56.19372 mm")))
sketch10.addConstraint(Sketcher.Constraint("DistanceY", 2, 2, -1, 1, Q("305.299579 mm")))
pad7 = body9.newObject("PartDesign::Pad", "Pad006")
pad7.Profile = sketch10
pad7.Length = Q("0.125 in")
pad7.Reversed = True

sketch11 = body9.newObject("Sketcher::SketchObject", "Sketch010")
sketch11.Placement = App.Placement(Vector(117.482892, 0, -98.817385), App.Rotation(Vector(0, 1, 0), Vector(0.643695149, 0, 0.76528201), Vector(0.76528201, 0, -0.643695149), "ZXY"))
sketch11.addGeometry(Part.LineSegment(Vector(115.9, -269.8, 0), Vector(115.9, -273, 0)), False)
sketch11.addGeometry(Part.LineSegment(Vector(115.9, -273, 0), Vector(138.1, -273, 0)), False)
sketch11.addGeometry(Part.LineSegment(Vector(138.1, -273, 0), Vector(138.1, -269.8, 0)), False)
sketch11.addGeometry(Part.LineSegment(Vector(138.1, -269.8, 0), Vector(115.9, -269.8, 0)), False)
sketch11.addConstraint(Sketcher.Constraint("Coincident", 0, 2, 1, 1))
sketch11.addConstraint(Sketcher.Constraint("Coincident", 1, 2, 2, 1))
sketch11.addConstraint(Sketcher.Constraint("Coincident", 2, 2, 3, 1))
sketch11.addConstraint(Sketcher.Constraint("Coincident", 3, 2, 0, 1))
sketch11.addConstraint(Sketcher.Constraint("Vertical", 0))
sketch11.addConstraint(Sketcher.Constraint("Horizontal", 1))
sketch11.addConstraint(Sketcher.Constraint("Vertical", 2))
sketch11.addConstraint(Sketcher.Constraint("Horizontal", 3))
sketch11.addConstraint(Sketcher.Constraint("DistanceX", 1, 1, 1, 2, Q("0.875 in")))
sketch11.addConstraint(Sketcher.Constraint("DistanceY", 0, 2, 0, 1, Q("0.125 in")))
sketch11.addConstraint(Sketcher.Constraint("DistanceX", -1, 1, 0, 2, Q("4.5625 in")))
sketch11.addConstraint(Sketcher.Constraint("DistanceY", 0, 2, -1, 1, Q("272.9869 mm")))
pad8 = body9.newObject("PartDesign::Pad", "Pad007")
pad8.Profile = sketch11
pad8.Length = 209.318528
pad8.Reversed = True
body3.Visibility = False
mirroring.Visibility = False

doc.recompute()
